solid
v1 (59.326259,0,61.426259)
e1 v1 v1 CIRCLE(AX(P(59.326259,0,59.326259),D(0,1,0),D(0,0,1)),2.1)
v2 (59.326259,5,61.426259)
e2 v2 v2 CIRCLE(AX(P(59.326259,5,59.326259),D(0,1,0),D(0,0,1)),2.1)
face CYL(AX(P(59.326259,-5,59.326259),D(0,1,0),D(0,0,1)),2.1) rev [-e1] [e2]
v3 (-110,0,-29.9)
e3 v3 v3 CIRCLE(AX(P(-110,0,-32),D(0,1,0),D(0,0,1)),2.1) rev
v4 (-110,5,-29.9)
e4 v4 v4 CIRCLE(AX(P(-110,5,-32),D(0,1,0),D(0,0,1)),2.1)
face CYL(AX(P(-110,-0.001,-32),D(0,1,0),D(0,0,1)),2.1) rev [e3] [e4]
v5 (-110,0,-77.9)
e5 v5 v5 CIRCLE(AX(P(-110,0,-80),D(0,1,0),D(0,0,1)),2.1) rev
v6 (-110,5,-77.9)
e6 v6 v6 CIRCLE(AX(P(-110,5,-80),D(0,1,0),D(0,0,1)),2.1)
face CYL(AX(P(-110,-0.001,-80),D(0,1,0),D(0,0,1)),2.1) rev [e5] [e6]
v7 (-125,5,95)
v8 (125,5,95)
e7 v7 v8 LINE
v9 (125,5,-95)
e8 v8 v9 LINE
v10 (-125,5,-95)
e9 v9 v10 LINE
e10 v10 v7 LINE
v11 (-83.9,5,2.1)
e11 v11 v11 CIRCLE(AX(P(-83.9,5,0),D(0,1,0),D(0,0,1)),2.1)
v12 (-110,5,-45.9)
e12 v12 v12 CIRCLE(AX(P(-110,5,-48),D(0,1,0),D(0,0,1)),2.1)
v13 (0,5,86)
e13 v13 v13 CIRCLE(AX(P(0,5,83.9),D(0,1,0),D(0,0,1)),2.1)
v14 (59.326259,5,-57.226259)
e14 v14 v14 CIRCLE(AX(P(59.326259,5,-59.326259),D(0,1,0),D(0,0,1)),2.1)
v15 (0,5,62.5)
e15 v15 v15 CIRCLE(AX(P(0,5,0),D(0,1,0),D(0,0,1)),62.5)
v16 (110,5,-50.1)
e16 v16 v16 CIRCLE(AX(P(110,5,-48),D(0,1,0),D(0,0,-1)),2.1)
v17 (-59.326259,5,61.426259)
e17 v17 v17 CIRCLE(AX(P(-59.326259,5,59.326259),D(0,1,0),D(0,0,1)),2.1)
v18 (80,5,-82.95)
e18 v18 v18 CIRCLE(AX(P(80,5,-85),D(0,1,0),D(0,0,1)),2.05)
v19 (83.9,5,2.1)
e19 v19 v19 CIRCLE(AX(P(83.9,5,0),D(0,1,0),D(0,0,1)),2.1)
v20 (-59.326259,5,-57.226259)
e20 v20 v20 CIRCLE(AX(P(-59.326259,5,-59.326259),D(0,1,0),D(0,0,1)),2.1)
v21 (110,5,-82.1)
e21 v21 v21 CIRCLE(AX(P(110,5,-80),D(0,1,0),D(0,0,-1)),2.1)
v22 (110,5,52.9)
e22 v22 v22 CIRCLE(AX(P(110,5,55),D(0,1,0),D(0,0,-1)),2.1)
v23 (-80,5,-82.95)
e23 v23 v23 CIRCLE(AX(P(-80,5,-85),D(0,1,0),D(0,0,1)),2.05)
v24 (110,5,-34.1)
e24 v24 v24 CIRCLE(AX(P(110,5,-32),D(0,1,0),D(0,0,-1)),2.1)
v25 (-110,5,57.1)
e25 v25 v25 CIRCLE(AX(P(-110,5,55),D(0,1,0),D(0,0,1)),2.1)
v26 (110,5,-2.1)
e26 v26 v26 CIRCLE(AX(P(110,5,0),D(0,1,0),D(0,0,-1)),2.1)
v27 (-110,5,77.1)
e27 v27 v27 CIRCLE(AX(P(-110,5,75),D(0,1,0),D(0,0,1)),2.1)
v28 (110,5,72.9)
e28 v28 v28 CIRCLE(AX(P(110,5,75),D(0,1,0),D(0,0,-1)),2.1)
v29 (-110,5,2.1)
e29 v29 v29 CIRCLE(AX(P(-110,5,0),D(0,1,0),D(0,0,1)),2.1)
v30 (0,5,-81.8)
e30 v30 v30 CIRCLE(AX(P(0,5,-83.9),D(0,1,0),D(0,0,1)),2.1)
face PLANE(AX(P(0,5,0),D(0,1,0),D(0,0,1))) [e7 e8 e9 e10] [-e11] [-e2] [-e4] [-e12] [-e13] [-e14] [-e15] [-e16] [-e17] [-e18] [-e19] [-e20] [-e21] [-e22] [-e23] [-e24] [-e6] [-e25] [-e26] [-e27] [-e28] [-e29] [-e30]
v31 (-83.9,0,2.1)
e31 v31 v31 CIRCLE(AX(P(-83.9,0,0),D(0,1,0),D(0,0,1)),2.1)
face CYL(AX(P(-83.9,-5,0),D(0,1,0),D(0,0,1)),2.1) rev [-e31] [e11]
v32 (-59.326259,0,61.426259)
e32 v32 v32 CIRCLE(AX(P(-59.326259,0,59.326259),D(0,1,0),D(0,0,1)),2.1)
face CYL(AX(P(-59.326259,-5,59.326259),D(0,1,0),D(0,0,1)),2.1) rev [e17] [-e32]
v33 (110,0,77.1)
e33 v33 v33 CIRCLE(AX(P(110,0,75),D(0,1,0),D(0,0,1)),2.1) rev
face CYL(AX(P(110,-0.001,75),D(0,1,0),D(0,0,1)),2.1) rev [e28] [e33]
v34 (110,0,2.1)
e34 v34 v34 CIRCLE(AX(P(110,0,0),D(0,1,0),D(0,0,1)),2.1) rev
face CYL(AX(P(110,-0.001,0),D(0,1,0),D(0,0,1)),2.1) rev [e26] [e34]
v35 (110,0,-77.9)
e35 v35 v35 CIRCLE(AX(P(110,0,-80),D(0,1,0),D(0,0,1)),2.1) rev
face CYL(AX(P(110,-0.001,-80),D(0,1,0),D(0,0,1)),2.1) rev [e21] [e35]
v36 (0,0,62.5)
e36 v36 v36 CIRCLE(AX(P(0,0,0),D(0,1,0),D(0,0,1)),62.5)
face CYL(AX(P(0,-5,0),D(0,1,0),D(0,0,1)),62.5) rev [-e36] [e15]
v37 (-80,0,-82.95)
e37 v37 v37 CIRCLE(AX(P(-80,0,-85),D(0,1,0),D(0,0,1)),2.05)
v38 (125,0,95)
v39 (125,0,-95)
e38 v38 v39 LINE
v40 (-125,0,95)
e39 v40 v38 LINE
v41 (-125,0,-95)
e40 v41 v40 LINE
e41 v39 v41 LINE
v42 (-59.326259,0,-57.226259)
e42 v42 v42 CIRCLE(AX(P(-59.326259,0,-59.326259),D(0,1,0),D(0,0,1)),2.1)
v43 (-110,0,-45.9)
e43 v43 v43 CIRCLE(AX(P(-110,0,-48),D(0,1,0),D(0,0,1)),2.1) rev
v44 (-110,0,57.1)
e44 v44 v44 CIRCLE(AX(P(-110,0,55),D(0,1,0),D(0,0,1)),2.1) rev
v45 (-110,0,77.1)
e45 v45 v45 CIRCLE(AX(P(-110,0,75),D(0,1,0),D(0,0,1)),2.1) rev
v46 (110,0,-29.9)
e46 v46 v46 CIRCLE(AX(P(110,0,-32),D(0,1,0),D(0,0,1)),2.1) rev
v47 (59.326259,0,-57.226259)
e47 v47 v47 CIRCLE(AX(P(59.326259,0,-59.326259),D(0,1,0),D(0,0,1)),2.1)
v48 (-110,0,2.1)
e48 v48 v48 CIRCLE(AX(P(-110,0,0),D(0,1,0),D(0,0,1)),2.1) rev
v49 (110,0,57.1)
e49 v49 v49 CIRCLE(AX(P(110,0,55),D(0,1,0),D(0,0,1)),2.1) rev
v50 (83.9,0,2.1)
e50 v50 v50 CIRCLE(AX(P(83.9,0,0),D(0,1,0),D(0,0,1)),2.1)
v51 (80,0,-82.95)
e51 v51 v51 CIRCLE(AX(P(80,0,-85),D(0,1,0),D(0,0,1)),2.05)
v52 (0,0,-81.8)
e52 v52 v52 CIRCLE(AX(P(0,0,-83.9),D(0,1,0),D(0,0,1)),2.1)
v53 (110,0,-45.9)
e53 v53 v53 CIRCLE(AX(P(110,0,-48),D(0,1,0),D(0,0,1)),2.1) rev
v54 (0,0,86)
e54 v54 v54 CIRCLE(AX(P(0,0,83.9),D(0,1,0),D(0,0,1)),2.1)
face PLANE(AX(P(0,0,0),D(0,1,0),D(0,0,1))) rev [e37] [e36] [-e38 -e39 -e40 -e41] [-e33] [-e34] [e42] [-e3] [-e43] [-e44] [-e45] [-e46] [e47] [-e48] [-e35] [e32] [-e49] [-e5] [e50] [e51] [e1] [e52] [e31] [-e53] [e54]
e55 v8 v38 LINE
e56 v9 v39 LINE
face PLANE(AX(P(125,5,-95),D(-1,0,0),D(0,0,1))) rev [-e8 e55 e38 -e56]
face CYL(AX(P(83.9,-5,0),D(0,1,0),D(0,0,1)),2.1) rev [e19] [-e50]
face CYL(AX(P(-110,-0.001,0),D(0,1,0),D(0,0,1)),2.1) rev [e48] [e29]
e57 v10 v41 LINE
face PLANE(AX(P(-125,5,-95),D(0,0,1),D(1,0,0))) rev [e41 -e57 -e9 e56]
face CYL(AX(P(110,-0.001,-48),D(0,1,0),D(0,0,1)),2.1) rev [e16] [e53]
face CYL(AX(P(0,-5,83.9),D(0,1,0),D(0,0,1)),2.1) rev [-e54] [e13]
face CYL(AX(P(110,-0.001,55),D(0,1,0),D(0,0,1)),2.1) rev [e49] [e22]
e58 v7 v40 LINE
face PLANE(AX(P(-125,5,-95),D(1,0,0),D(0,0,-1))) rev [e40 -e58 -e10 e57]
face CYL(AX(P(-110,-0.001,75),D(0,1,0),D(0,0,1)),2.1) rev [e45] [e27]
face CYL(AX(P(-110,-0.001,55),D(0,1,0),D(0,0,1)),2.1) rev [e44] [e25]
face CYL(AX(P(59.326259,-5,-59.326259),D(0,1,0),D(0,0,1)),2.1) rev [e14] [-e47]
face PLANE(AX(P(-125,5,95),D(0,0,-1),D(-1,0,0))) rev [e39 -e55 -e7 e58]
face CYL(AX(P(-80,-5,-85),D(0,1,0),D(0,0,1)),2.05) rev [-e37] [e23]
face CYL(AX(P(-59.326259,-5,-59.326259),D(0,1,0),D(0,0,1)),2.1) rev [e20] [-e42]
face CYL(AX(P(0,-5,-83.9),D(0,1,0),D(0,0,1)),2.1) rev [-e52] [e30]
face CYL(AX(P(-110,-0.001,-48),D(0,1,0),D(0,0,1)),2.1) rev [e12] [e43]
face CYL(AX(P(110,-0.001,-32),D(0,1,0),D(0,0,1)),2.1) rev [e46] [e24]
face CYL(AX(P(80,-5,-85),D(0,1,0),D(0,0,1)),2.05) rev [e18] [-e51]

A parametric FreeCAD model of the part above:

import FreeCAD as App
import Part
import Sketcher

doc = App.newDocument("Part")
body = doc.addObject("PartDesign::Body", "Body")

# Sketch on XZ plane
sketch1 = body.newObject("Sketcher::SketchObject", "Sketch")
sketch1.AttachmentSupport = (doc.getObject("XZ_Plane"), [""])
sketch1.MapMode = "FlatFace"
sketch1.addGeometry([
    Part.LineSegment(App.Vector(-125, -95, 0), App.Vector(-125, 95, 0)),
    Part.LineSegment(App.Vector(-125, 95, 0), App.Vector(125, 95, 0)),
    Part.LineSegment(App.Vector(125, 95, 0), App.Vector(125, -95, 0)),
    Part.LineSegment(App.Vector(125, -95, 0), App.Vector(-125, -95, 0)),
], False)
sketch1.addConstraint([
    Sketcher.Constraint("Coincident", 0, 2, 1, 1),
    Sketcher.Constraint("Coincident", 1, 2, 2, 1),
    Sketcher.Constraint("Coincident", 2, 2, 3, 1),
    Sketcher.Constraint("Coincident", 3, 2, 0, 1),
    Sketcher.Constraint("Vertical", 0),
    Sketcher.Constraint("Horizontal", 1),
    Sketcher.Constraint("Vertical", 2),
    Sketcher.Constraint("Horizontal", 3),
    Sketcher.Constraint("Symmetric", 0, 2, 2, 2, -1, 1),
    Sketcher.Constraint("DistanceX", 1, 1, 1, 2, 250.0),
    Sketcher.Constraint("DistanceY", 0, 1, 0, 2, 190.0),
])
pad1 = body.newObject("PartDesign::Pad", "Pad")
pad1.Profile = sketch1
pad1.Length = 5
pad1.Reversed = True

# Sketch on XZ plane
sketch2 = body.newObject("Sketcher::SketchObject", "Sketch001")
sketch2.AttachmentSupport = (doc.getObject("XZ_Plane"), [""])
sketch2.MapMode = "FlatFace"
sketch2.AttachmentOffset = App.Placement(App.Vector(0, 0, -5), App.Rotation())
sketch2.addGeometry([
    Part.Circle(App.Vector(-83.9, 0, 0), App.Vector(0, 0, 1), 2.1),  # 0
    Part.Circle(App.Vector(-59.3, -59.3, 0), App.Vector(0, 0, 1), 2.1),  # 1
    Part.Circle(App.Vector(0, -83.9, 0), App.Vector(0, 0, 1), 2.1),  # 2
    Part.Circle(App.Vector(59.3, -59.3, 0), App.Vector(0, 0, 1), 2.1),  # 3
    Part.Circle(App.Vector(83.9, 0, 0), App.Vector(0, 0, 1), 2.1),  # 4
    Part.Circle(App.Vector(59.3, 59.3, 0), App.Vector(0, 0, 1), 2.1),  # 5
    Part.Circle(App.Vector(0, 83.9, 0), App.Vector(0, 0, 1), 2.1),  # 6
    Part.Circle(App.Vector(-59.3, 59.3, 0), App.Vector(0, 0, 1), 2.1),  # 7
], False)
sketch2.addConstraint([
    Sketcher.Constraint("Equal", 0, 1),
    Sketcher.Constraint("Equal", 1, 2),
    Sketcher.Constraint("Equal", 2, 3),
    Sketcher.Constraint("Equal", 3, 4),
    Sketcher.Constraint("Equal", 4, 5),
    Sketcher.Constraint("Equal", 5, 6),
    Sketcher.Constraint("Equal", 6, 7),
    Sketcher.Constraint("Symmetric", 0, 3, 4, 3, -1, 1),
    Sketcher.Constraint("Symmetric", 1, 3, 5, 3, -1, 1),
    Sketcher.Constraint("Symmetric", 2, 3, 6, 3, -1, 1),
    Sketcher.Constraint("Symmetric", 3, 3, 7, 3, -1, 1),
    Sketcher.Constraint("Symmetric", 1, 3, 3, 3, -2),
    Sketcher.Constraint("PointOnObject", 0, 3, -1),
    Sketcher.Constraint("PointOnObject", 2, 3, -2),
    Sketcher.Constraint("Diameter", 0, 4.2),
    Sketcher.Constraint("DistanceX", 0, 3, -1, 1, 83.9),
    Sketcher.Constraint("DistanceY", 2, 3, -1, 1, 83.9),
    Sketcher.Constraint("DistanceX", 1, 3, -1, 1, 59.326259),
    Sketcher.Constraint("DistanceY", 1, 3, -1, 1, 59.326259),
])
pocket1 = body.newObject("PartDesign::Pocket", "Pocket")
pocket1.Profile = sketch2
pocket1.Length = 10
pocket1.Reversed = True

# Sketch on XZ plane
sketch3 = body.newObject("Sketcher::SketchObject", "Sketch002")
sketch3.AttachmentSupport = (doc.getObject("XZ_Plane"), [""])
sketch3.MapMode = "FlatFace"
sketch3.AttachmentOffset = App.Placement(App.Vector(0, 0, -5), App.Rotation())
sketch3.addGeometry(Part.Circle(App.Vector(0, 0, 0), App.Vector(0, 0, 1), 62), False)
sketch3.addConstraint([
    Sketcher.Constraint("Coincident", 0, 3, -1, 1),
    Sketcher.Constraint("Diameter", 0, 125.0),
])
pocket2 = body.newObject("PartDesign::Pocket", "Pocket001")
pocket2.Profile = sketch3
pocket2.Length = 10
pocket2.Reversed = True

# Sketch on XZ plane
sketch4 = body.newObject("Sketcher::SketchObject", "Sketch003")
sketch4.AttachmentSupport = (doc.getObject("XZ_Plane"), [""])
sketch4.MapMode = "FlatFace"
sketch4.AttachmentOffset = App.Placement(App.Vector(0, 0, -5), App.Rotation())
sketch4.addGeometry(Part.Circle(App.Vector(-110, -80, 0), App.Vector(0, 0, 1), 2.1), False)
sketch4.addConstraint([
    Sketcher.Constraint("Diameter", 0, 4.2),
    Sketcher.Constraint("DistanceX", 0, 3, -1, 1, 110.0),
    Sketcher.Constraint("DistanceY", 0, 3, -1, 1, 80.0),
])
pocket3 = body.newObject("PartDesign::Pocket", "Pocket002")
pocket3.Profile = sketch4
pocket3.Type = "UpToFirst"
pocket3.Reversed = True

# Sketch on XZ plane
sketch5 = body.newObject("Sketcher::SketchObject", "Sketch004")
sketch5.AttachmentSupport = (doc.getObject("XZ_Plane"), [""])
sketch5.MapMode = "FlatFace"
sketch5.AttachmentOffset = App.Placement(App.Vector(0, 0, -5), App.Rotation())
sketch5.addGeometry(Part.Circle(App.Vector(-110, -48, 0), App.Vector(0, 0, 1), 2.1), False)
sketch5.addConstraint([
    Sketcher.Constraint("Diameter", 0, 4.2),
    Sketcher.Constraint("DistanceX", 0, 3, -1, 1, 110.0),
    Sketcher.Constraint("DistanceY", 0, 3, -1, 1, 48.0),
])
pocket4 = body.newObject("PartDesign::Pocket", "Pocket003")
pocket4.Profile = sketch5
pocket4.Type = "UpToFirst"
pocket4.Reversed = True

# Sketch on XZ plane
sketch6 = body.newObject("Sketcher::SketchObject", "Sketch005")
sketch6.AttachmentSupport = (doc.getObject("XZ_Plane"), [""])
sketch6.MapMode = "FlatFace"
sketch6.AttachmentOffset = App.Placement(App.Vector(0, 0, -5), App.Rotation())
sketch6.addGeometry(Part.Circle(App.Vector(110, -48, 0), App.Vector(0, 0, 1), 2.1), False)
sketch6.addConstraint([
    Sketcher.Constraint("Diameter", 0, 4.2),
    Sketcher.Constraint("DistanceX", -1, 1, 0, 3, 110.0),
    Sketcher.Constraint("DistanceY", 0, 3, -1, 1, 48.0),
])
pocket5 = body.newObject("PartDesign::Pocket", "Pocket004")
pocket5.Profile = sketch6
pocket5.Type = "UpToFirst"
pocket5.Reversed = True

# Sketch on XZ plane
sketch7 = body.newObject("Sketcher::SketchObject", "Sketch006")
sketch7.AttachmentSupport = (doc.getObject("XZ_Plane"), [""])
sketch7.MapMode = "FlatFace"
sketch7.AttachmentOffset = App.Placement(App.Vector(0, 0, -5), App.Rotation())
sketch7.addGeometry(Part.Circle(App.Vector(110, -80, 0), App.Vector(0, 0, 1), 2.1), False)
sketch7.addConstraint([
    Sketcher.Constraint("Diameter", 0, 4.2),
    Sketcher.Constraint("DistanceX", -1, 1, 0, 3, 110.0),
    Sketcher.Constraint("DistanceY", 0, 3, -1, 1, 80.0),
])
pocket6 = body.newObject("PartDesign::Pocket", "Pocket005")
pocket6.Profile = sketch7
pocket6.Type = "UpToFirst"
pocket6.Reversed = True

# Sketch on XZ plane
sketch8 = body.newObject("Sketcher::SketchObject", "Sketch007")
sketch8.AttachmentSupport = (doc.getObject("XZ_Plane"), [""])
sketch8.MapMode = "FlatFace"
sketch8.AttachmentOffset = App.Placement(App.Vector(0, 0, -5), App.Rotation())
sketch8.addGeometry(Part.Circle(App.Vector(-110, 75, 0), App.Vector(0, 0, 1), 2.1), False)
sketch8.addConstraint([
    Sketcher.Constraint("Diameter", 0, 4.2),
    Sketcher.Constraint("DistanceX", 0, 3, -1, 1, 110.0),
    Sketcher.Constraint("DistanceY", -1, 1, 0, 3, 75.0),
])
pocket7 = body.newObject("PartDesign::Pocket", "Pocket006")
pocket7.Profile = sketch8
pocket7.Type = "UpToFirst"
pocket7.Reversed = True

# Sketch on XZ plane
sketch9 = body.newObject("Sketcher::SketchObject", "Sketch008")
sketch9.AttachmentSupport = (doc.getObject("XZ_Plane"), [""])
sketch9.MapMode = "FlatFace"
sketch9.AttachmentOffset = App.Placement(App.Vector(0, 0, -5), App.Rotation())
sketch9.addGeometry(Part.Circle(App.Vector(110, 75, 0), App.Vector(0, 0, 1), 2.1), False)
sketch9.addConstraint([
    Sketcher.Constraint("Diameter", 0, 4.2),
    Sketcher.Constraint("DistanceX", -1, 1, 0, 3, 110.0),
    Sketcher.Constraint("DistanceY", -1, 1, 0, 3, 75.0),
])
pocket8 = body.newObject("PartDesign::Pocket", "Pocket007")
pocket8.Profile = sketch9
pocket8.Type = "UpToFirst"
pocket8.Reversed = True

# Sketch on XZ plane
sketch10 = body.newObject("Sketcher::SketchObject", "Sketch009")
sketch10.AttachmentSupport = (doc.getObject("XZ_Plane"), [""])
sketch10.MapMode = "FlatFace"
sketch10.AttachmentOffset = App.Placement(App.Vector(0, 0, -5), App.Rotation())
sketch10.addGeometry(Part.Circle(App.Vector(-110, -32, 0), App.Vector(0, 0, 1), 2.1), False)
sketch10.addConstraint([
    Sketcher.Constraint("Diameter", 0, 4.2),
    Sketcher.Constraint("DistanceX", 0, 3, -1, 1, 110.0),
    Sketcher.Constraint("DistanceY", 0, 3, -1, 1, 32.0),
])
pocket9 = body.newObject("PartDesign::Pocket", "Pocket008")
pocket9.Profile = sketch10
pocket9.Type = "UpToFirst"
pocket9.Reversed = True

# Sketch on XZ plane
sketch11 = body.newObject("Sketcher::SketchObject", "Sketch010")
sketch11.AttachmentSupport = (doc.getObject("XZ_Plane"), [""])
sketch11.MapMode = "FlatFace"
sketch11.AttachmentOffset = App.Placement(App.Vector(0, 0, -5), App.Rotation())
sketch11.addGeometry(Part.Circle(App.Vector(-110, 0, 0), App.Vector(0, 0, 1), 2.1), False)
sketch11.addConstraint([
    Sketcher.Constraint("PointOnObject", 0, 3, -1),
    Sketcher.Constraint("Diameter", 0, 4.2),
    Sketcher.Constraint("DistanceX", 0, 3, -1, 1, 110.0),
])
pocket10 = body.newObject("PartDesign::Pocket", "Pocket009")
pocket10.Profile = sketch11
pocket10.Type = "UpToFirst"
pocket10.Reversed = True

# Sketch on XZ plane
sketch12 = body.newObject("Sketcher::SketchObject", "Sketch011")
sketch12.AttachmentSupport = (doc.getObject("XZ_Plane"), [""])
sketch12.MapMode = "FlatFace"
sketch12.AttachmentOffset = App.Placement(App.Vector(0, 0, -5), App.Rotation())
sketch12.addGeometry(Part.Circle(App.Vector(110, -32, 0), App.Vector(0, 0, 1), 2.1), False)
sketch12.addConstraint([
    Sketcher.Constraint("Diameter", 0, 4.2),
    Sketcher.Constraint("DistanceX", -1, 1, 0, 3, 110.0),
    Sketcher.Constraint("DistanceY", 0, 3, -1, 1, 32.0),
])
pocket11 = body.newObject("PartDesign::Pocket", "Pocket010")
pocket11.Profile = sketch12
pocket11.Type = "UpToFirst"
pocket11.Reversed = True

# Sketch on XZ plane
sketch13 = body.newObject("Sketcher::SketchObject", "Sketch012")
sketch13.AttachmentSupport = (doc.getObject("XZ_Plane"), [""])
sketch13.MapMode = "FlatFace"
sketch13.AttachmentOffset = App.Placement(App.Vector(0, 0, -5), App.Rotation())
sketch13.addGeometry(Part.Circle(App.Vector(110, 0, 0), App.Vector(0, 0, 1), 2.1), False)
sketch13.addConstraint([
    Sketcher.Constraint("PointOnObject", 0, 3, -1),
    Sketcher.Constraint("Diameter", 0, 4.2),
    Sketcher.Constraint("DistanceX", -1, 1, 0, 3, 110.0),
])
pocket12 = body.newObject("PartDesign::Pocket", "Pocket011")
pocket12.Profile = sketch13
pocket12.Type = "UpToFirst"
pocket12.Reversed = True

# Sketch on XZ plane
sketch14 = body.newObject("Sketcher::SketchObject", "Sketch013")
sketch14.AttachmentSupport = (doc.getObject("XZ_Plane"), [""])
sketch14.MapMode = "FlatFace"
sketch14.AttachmentOffset = App.Placement(App.Vector(0, 0, -5), App.Rotation())
sketch14.addGeometry(Part.Circle(App.Vector(-110, 55, 0), App.Vector(0, 0, 1), 2.1), False)
sketch14.addConstraint([
    Sketcher.Constraint("Diameter", 0, 4.2),
    Sketcher.Constraint("DistanceX", 0, 3, -1, 1, 110.0),
    Sketcher.Constraint("DistanceY", -1, 1, 0, 3, 55.0),
])
pocket13 = body.newObject("PartDesign::Pocket", "Pocket012")
pocket13.Profile = sketch14
pocket13.Type = "UpToFirst"
pocket13.Reversed = True

# Sketch on XZ plane
sketch15 = body.newObject("Sketcher::SketchObject", "Sketch014")
sketch15.AttachmentSupport = (doc.getObject("XZ_Plane"), [""])
sketch15.MapMode = "FlatFace"
sketch15.AttachmentOffset = App.Placement(App.Vector(0, 0, -5), App.Rotation())
sketch15.addGeometry(Part.Circle(App.Vector(110, 55, 0), App.Vector(0, 0, 1), 2.1), False)
sketch15.addConstraint([
    Sketcher.Constraint("Diameter", 0, 4.2),
    Sketcher.Constraint("DistanceX", -1, 1, 0, 3, 110.0),
    Sketcher.Constraint("DistanceY", -1, 1, 0, 3, 55.0),
])
pocket14 = body.newObject("PartDesign::Pocket", "Pocket013")
pocket14.Profile = sketch15
pocket14.Type = "UpToFirst"
pocket14.Reversed = True

# Sketch on XZ plane
sketch16 = body.newObject("Sketcher::SketchObject", "Sketch015")
sketch16.AttachmentSupport = (doc.getObject("XZ_Plane"), [""])
sketch16.MapMode = "FlatFace"
sketch16.AttachmentOffset = App.Placement(App.Vector(0, 0, -5), App.Rotation())
sketch16.addGeometry([
    Part.LineSegment(App.Vector(-157.4, -127.4, 0), App.Vector(-157.4, 127.4, 0)),  # 0
    Part.LineSegment(App.Vector(-157.4, 127.4, 0), App.Vector(157.4, 127.4, 0)),  # 1
    Part.LineSegment(App.Vector(157.4, 127.4, 0), App.Vector(157.4, -127.4, 0)),  # 2
    Part.LineSegment(App.Vector(157.4, -127.4, 0), App.Vector(-157.4, -127.4, 0)),  # 3
    Part.LineSegment(App.Vector(125, 95, 0), App.Vector(-125, 95, 0)),  # 4
    Part.LineSegment(App.Vector(-125, 95, 0), App.Vector(-125, -95, 0)),  # 5
    Part.LineSegment(App.Vector(-125, -95, 0), App.Vector(125, -95, 0)),  # 6
    Part.LineSegment(App.Vector(125, -95, 0), App.Vector(125, 95, 0)),  # 7
    Part.Circle(App.Vector(-80, -85, 0), App.Vector(0, 0, 1), 2),  # 8
    Part.Circle(App.Vector(80, -85, 0), App.Vector(0, 0, 1), 2),  # 9
], False)
sketch16.addConstraint([
    Sketcher.Constraint("Coincident", 0, 2, 1, 1),
    Sketcher.Constraint("Coincident", 1, 2, 2, 1),
    Sketcher.Constraint("Coincident", 2, 2, 3, 1),
    Sketcher.Constraint("Coincident", 3, 2, 0, 1),
    Sketcher.Constraint("Coincident", 4, 2, 5, 1),
    Sketcher.Constraint("Coincident", 5, 2, 6, 1),
    Sketcher.Constraint("Coincident", 6, 2, 7, 1),
    Sketcher.Constraint("Coincident", 7, 2, 4, 1),
    Sketcher.Constraint("Vertical", 0),
    Sketcher.Constraint("Horizontal", 1),
    Sketcher.Constraint("Vertical", 2),
    Sketcher.Constraint("Horizontal", 3),
    Sketcher.Constraint("Horizontal", 4),
    Sketcher.Constraint("Vertical", 5),
    Sketcher.Constraint("Horizontal", 6),
    Sketcher.Constraint("Vertical", 7),
    Sketcher.Constraint("Equal", 8, 9),
    Sketcher.Constraint("Symmetric", 0, 2, 2, 2, -1, 1),
    Sketcher.Constraint("Symmetric", 4, 2, 6, 2, -1, 1),
    Sketcher.Constraint("Symmetric", 8, 3, 9, 3, -2),
    Sketcher.Constraint("Diameter", 8, 4.1),
    Sketcher.Constraint("DistanceX", 4, 2, 4, 1, 250.0),
    Sketcher.Constraint("DistanceY", 5, 2, 5, 1, 190.0),
    Sketcher.Constraint("DistanceX", 8, 3, -1, 1, 80.0),
    Sketcher.Constraint("DistanceY", 8, 3, -1, 1, 85.0),
    Sketcher.Constraint("DistanceX", 1, 1, 1, 2, 314.81),
    Sketcher.Constraint("DistanceY", 0, 1, 0, 2, 254.81),
])
pocket15 = body.newObject("PartDesign::Pocket", "Pocket014")
pocket15.Profile = sketch16
pocket15.Length = 10
pocket15.Reversed = True

doc.recompute()
